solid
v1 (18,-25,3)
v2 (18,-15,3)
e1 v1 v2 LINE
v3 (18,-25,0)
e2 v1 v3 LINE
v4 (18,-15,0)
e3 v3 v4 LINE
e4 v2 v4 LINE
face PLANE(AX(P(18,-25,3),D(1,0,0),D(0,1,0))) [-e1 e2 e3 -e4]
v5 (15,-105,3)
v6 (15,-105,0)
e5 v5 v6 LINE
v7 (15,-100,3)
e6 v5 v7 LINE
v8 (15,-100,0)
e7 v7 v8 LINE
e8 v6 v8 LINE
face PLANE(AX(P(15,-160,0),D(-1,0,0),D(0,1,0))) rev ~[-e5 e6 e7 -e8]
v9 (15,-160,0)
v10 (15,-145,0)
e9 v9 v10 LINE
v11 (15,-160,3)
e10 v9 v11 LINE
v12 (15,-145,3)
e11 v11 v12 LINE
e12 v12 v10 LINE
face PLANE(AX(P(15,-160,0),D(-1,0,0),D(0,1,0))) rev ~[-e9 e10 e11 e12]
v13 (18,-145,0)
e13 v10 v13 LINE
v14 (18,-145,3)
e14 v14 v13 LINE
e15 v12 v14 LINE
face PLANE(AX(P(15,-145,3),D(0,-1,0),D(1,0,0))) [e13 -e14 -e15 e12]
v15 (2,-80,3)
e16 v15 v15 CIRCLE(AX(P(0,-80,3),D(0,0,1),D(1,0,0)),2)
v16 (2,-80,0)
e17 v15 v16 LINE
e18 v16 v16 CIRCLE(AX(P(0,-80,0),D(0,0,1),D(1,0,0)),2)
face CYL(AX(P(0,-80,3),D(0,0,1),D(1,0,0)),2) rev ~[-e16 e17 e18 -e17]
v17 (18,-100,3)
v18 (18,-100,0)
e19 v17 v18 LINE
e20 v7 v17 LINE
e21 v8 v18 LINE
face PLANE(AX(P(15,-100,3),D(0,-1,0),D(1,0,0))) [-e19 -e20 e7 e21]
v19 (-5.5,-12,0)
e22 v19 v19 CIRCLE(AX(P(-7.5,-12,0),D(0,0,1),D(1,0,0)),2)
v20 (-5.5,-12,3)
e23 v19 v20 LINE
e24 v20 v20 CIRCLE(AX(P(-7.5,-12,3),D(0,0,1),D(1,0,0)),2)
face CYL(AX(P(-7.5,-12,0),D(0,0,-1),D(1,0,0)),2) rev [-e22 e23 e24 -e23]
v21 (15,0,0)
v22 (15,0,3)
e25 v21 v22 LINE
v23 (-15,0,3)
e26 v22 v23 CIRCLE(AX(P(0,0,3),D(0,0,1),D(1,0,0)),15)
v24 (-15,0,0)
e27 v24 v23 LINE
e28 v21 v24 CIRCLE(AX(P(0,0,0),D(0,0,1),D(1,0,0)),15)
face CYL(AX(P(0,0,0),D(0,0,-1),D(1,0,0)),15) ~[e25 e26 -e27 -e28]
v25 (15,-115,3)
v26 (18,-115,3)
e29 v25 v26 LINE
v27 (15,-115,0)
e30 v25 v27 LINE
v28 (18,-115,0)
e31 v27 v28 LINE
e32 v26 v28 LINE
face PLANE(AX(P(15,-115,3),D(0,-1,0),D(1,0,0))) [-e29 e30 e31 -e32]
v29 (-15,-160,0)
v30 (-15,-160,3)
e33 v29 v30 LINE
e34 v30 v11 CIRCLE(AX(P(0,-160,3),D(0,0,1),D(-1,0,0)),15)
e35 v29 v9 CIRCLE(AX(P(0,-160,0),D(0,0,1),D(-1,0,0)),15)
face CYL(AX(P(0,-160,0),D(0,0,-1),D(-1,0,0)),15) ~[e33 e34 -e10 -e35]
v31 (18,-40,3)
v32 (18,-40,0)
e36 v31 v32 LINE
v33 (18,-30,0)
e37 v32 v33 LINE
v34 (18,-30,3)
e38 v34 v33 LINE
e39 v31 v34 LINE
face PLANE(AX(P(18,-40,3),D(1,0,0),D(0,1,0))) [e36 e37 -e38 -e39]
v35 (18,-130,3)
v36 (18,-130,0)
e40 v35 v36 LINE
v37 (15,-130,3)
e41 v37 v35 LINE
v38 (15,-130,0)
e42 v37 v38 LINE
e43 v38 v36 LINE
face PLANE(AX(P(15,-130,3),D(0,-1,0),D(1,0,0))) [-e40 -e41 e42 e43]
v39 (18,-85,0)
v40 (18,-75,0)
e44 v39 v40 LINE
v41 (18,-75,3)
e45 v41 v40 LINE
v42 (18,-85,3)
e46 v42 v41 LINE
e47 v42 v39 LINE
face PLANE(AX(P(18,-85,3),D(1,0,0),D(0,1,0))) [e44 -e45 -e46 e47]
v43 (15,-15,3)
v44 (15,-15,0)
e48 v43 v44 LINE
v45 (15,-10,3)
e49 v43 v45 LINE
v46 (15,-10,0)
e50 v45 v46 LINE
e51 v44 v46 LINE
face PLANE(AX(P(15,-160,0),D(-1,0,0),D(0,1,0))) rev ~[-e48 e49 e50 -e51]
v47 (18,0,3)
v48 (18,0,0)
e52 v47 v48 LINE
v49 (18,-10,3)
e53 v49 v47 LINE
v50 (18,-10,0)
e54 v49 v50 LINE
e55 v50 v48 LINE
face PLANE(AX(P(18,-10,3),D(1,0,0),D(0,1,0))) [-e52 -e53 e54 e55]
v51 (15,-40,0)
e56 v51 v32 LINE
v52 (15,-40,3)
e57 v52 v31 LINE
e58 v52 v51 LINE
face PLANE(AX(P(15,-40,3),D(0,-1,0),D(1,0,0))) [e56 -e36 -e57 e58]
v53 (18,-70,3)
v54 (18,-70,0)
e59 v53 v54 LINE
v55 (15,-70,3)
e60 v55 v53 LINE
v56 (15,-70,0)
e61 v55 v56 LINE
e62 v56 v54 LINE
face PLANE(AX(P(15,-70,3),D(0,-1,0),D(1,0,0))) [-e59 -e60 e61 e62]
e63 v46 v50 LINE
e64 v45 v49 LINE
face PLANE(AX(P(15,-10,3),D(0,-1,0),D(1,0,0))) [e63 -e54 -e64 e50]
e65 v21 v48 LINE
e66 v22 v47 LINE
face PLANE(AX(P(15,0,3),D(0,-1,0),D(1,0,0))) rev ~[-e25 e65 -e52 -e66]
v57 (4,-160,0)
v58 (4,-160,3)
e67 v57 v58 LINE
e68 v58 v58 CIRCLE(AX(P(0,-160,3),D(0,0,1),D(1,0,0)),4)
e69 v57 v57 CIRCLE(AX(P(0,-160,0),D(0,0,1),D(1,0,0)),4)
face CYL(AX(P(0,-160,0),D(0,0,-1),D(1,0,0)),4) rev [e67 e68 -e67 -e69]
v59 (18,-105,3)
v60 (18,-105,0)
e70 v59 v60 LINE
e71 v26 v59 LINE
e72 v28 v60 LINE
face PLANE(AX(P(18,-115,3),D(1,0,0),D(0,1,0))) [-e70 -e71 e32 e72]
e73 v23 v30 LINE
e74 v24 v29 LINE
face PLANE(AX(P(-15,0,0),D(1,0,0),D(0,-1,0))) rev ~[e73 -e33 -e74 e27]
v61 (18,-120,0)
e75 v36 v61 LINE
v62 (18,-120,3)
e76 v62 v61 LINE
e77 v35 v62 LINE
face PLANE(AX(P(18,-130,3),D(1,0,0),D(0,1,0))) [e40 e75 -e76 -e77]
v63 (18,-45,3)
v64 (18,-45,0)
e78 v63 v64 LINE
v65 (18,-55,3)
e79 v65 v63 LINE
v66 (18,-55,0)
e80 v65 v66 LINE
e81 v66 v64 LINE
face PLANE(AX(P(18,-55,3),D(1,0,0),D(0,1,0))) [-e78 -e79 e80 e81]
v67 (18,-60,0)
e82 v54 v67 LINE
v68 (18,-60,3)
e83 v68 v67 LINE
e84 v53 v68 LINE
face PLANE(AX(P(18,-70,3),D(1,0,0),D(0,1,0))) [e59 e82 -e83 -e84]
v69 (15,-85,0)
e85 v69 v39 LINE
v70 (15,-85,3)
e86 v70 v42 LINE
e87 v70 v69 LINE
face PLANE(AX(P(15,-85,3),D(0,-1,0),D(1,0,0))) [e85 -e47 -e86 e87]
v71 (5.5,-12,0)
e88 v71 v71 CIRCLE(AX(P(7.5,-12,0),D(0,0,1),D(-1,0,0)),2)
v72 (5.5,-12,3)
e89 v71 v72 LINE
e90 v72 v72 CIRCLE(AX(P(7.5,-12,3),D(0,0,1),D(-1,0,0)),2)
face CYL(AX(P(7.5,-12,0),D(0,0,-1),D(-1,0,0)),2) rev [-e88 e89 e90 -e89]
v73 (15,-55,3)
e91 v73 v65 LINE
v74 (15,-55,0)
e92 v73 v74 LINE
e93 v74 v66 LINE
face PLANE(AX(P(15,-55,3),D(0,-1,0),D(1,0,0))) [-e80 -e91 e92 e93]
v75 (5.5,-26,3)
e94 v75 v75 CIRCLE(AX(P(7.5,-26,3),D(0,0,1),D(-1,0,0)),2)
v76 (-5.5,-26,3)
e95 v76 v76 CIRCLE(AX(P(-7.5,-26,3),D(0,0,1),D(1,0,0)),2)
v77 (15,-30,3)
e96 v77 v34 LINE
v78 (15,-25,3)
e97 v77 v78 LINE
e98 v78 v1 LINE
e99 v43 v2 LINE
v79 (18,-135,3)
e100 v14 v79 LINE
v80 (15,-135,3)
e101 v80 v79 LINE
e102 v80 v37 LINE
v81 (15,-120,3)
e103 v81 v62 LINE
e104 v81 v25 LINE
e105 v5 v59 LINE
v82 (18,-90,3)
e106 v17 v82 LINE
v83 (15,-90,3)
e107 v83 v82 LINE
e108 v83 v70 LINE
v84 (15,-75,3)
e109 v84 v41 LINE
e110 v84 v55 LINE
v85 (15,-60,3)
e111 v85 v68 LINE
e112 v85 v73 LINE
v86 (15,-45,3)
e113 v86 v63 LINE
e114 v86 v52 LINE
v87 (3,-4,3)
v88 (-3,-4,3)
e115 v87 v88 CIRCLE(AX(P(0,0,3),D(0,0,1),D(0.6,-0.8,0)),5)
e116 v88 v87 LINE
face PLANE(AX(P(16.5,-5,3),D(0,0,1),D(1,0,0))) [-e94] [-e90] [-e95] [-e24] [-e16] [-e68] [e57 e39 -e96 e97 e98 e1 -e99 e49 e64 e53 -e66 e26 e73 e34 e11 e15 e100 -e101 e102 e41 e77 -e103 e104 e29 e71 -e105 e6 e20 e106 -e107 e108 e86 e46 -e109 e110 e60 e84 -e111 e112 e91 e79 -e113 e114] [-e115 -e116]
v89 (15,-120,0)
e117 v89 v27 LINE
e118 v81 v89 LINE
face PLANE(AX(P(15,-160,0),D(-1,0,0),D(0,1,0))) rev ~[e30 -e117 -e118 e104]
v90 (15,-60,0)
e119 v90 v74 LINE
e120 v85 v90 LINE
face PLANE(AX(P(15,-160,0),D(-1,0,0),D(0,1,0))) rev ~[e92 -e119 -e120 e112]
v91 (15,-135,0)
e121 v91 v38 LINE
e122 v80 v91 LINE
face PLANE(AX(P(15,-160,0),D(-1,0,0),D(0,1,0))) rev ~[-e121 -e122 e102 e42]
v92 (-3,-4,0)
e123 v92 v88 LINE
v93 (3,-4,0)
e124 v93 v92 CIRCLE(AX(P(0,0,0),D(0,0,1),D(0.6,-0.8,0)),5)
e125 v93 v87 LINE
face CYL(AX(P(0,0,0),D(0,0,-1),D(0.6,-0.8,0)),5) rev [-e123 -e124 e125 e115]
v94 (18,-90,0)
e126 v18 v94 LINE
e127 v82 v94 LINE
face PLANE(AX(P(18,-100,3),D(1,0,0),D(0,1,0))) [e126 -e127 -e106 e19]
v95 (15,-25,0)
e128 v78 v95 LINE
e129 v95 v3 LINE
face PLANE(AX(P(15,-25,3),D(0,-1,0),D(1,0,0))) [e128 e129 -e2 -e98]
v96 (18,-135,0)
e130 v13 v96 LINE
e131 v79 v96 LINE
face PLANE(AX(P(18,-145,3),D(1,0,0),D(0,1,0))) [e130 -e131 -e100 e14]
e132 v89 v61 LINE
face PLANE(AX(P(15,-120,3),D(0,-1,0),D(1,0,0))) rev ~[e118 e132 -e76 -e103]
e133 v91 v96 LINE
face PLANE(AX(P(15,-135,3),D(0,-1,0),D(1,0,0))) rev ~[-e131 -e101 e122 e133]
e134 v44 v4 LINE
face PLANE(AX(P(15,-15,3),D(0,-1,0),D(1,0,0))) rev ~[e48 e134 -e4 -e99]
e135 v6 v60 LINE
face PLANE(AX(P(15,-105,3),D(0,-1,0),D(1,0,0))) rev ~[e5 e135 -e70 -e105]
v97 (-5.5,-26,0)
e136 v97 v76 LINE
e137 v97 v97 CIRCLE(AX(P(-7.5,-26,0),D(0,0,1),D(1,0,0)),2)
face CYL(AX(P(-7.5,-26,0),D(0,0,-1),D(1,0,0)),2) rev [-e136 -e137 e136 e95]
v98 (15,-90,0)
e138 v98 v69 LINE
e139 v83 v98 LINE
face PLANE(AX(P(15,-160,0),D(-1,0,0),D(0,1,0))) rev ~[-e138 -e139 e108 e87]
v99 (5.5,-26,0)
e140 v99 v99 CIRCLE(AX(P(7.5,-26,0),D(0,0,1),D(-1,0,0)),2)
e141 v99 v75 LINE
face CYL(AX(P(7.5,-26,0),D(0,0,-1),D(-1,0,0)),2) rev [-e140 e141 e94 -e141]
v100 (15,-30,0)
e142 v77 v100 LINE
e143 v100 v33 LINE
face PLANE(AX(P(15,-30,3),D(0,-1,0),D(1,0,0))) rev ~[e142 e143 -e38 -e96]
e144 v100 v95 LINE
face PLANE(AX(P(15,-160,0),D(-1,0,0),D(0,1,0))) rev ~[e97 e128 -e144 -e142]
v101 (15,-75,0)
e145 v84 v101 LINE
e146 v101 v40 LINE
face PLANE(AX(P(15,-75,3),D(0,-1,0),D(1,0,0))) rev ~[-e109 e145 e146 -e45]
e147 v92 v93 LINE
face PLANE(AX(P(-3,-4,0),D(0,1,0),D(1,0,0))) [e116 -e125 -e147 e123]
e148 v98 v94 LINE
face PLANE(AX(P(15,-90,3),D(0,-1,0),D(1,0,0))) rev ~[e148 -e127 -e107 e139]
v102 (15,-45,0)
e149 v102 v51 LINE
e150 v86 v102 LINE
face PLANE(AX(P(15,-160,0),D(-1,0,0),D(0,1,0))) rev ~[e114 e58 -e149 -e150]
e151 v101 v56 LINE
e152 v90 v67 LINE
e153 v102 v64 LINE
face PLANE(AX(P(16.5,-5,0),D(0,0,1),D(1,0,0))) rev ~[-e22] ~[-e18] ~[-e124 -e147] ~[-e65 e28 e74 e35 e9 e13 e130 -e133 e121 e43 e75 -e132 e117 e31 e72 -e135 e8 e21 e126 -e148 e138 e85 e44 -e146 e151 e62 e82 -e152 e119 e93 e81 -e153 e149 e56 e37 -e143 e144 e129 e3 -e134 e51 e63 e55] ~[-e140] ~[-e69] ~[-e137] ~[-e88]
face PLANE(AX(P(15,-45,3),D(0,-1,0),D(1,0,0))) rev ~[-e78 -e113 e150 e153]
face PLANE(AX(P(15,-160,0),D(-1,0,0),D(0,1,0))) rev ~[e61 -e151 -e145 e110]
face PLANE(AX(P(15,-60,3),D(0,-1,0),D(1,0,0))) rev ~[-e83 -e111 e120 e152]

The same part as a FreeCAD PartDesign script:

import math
import FreeCAD as App
import Part
import Sketcher
from FreeCAD import Vector
Q = App.Units.Quantity

doc = App.newDocument("Part")
body = doc.addObject("PartDesign::Body", "Body")

# Sketch on XY plane
sketch1 = doc.addObject("Sketcher::SketchObject", "Sketch")
body.addObject(sketch1)
sketch1.AttachmentSupport = (doc.XY_Plane, [""])
sketch1.MapMode = "FlatFace"
sketch1.addGeometry([
    Part.LineSegment(Vector(-15, 0, 0), Vector(-15, -160, 0)),  # 0
    Part.ArcOfCircle(Part.Circle(Vector(0, -160, 0), Vector(0, 0, 1), 15), math.radians(180), math.radians(360)),  # 1
    Part.LineSegment(Vector(15, -160, 0), Vector(15, 0, 0)),  # 2
    Part.ArcOfCircle(Part.Circle(Vector(0, 0, 0), Vector(0, 0, 1), 15), math.radians(0), math.radians(180)),  # 3
    Part.Circle(Vector(0, -160, 0), Vector(0, 0, 1), 4),  # 4
    Part.Circle(Vector(-7.5, -26, 0), Vector(0, 0, 1), 2),  # 5
    Part.Circle(Vector(-7.5, -12, 0), Vector(0, 0, 1), 2),  # 6
    Part.ArcOfCircle(Part.Circle(Vector(0, 0, 0), Vector(0, 0, 1), 5), math.radians(-53), math.radians(233)),  # 7
    Part.LineSegment(Vector(3, -4, 0), Vector(-3, -4, 0)),  # 8
    Part.Circle(Vector(7.5, -26, 0), Vector(0, 0, 1), 2),  # 9
    Part.Circle(Vector(7.5, -12, 0), Vector(0, 0, 1), 2),  # 10
], False)
sketch1.addConstraint([
    Sketcher.Constraint("Tangent", 0, 2, 1, 1),
    Sketcher.Constraint("Tangent", 1, 2, 2, 1),
    Sketcher.Constraint("Tangent", 2, 2, 3, 1),
    Sketcher.Constraint("Tangent", 3, 2, 0, 1),
    Sketcher.Constraint("Coincident", 7, 1, 8, 1),
    Sketcher.Constraint("Coincident", 8, 2, 7, 2),
    Sketcher.Constraint("Vertical", 0),
    Sketcher.Constraint("Vertical", 2),
    Sketcher.Constraint("Horizontal", 8),
    Sketcher.Constraint("Coincident", 3, 3, -1, 1),
    Sketcher.Constraint("Coincident", 7, 3, -1, 1),
    Sketcher.Constraint("Coincident", 4, 3, 1, 3),
    Sketcher.Constraint("Equal", 5, 6),
    Sketcher.Constraint("Equal", 6, 9),
    Sketcher.Constraint("Equal", 9, 10),
    Sketcher.Constraint("Symmetric", 5, 3, 9, 3, -2),
    Sketcher.Constraint("Symmetric", 6, 3, 10, 3, -2),
    Sketcher.Constraint("Vertical", 5, 3, 6, 3),
    Sketcher.Constraint("Diameter", 4, Q("8 mm")),
    Sketcher.Constraint("Diameter", 5, Q("4 mm")),
    Sketcher.Constraint("Radius", 1, Q("15 mm")),
    Sketcher.Constraint("Radius", 7, Q("5 mm")),
    Sketcher.Constraint("DistanceX", 8, 2, 8, 1, Q("6 mm")),
    Sketcher.Constraint("DistanceY", 0, 2, 0, 1, Q("160 mm")),
    Sketcher.Constraint("DistanceY", 5, 3, -1, 1, Q("26 mm")),
    Sketcher.Constraint("DistanceY", 6, 3, -1, 1, Q("12 mm")),
    Sketcher.Constraint("DistanceX", 5, 3, 9, 3, Q("15 mm")),
])
pad1 = doc.addObject("PartDesign::Pad", "Pad")
body.addObject(pad1)
pad1.Profile = sketch1
pad1.Length = 3

# Sketch on XY plane
sketch2 = doc.addObject("Sketcher::SketchObject", "Sketch001")
body.addObject(sketch2)
sketch2.AttachmentSupport = (doc.XY_Plane, [""])
sketch2.MapMode = "FlatFace"
sketch2.AttachmentOffset = App.Placement(Vector(0, 0, 3), App.Rotation())
sketch2.addGeometry([
    Part.LineSegment(Vector(15, 0, 0), Vector(15, -10, 0)),  # 0
    Part.LineSegment(Vector(15, -10, 0), Vector(18, -10, 0)),  # 1
    Part.LineSegment(Vector(18, -10, 0), Vector(18, 0, 0)),  # 2
    Part.LineSegment(Vector(18, 0, 0), Vector(15, 0, 0)),  # 3
    Part.LineSegment(Vector(15, -15, 0), Vector(15, -25, 0)),  # 4
    Part.LineSegment(Vector(15, -25, 0), Vector(18, -25, 0)),  # 5
    Part.LineSegment(Vector(18, -25, 0), Vector(18, -15, 0)),  # 6
    Part.LineSegment(Vector(18, -15, 0), Vector(15, -15, 0)),  # 7
    Part.LineSegment(Vector(15, -30, 0), Vector(15, -40, 0)),  # 8
    Part.LineSegment(Vector(15, -40, 0), Vector(18, -40, 0)),  # 9
    Part.LineSegment(Vector(18, -40, 0), Vector(18, -30, 0)),  # 10
    Part.LineSegment(Vector(18, -30, 0), Vector(15, -30, 0)),  # 11
    Part.LineSegment(Vector(15, -45, 0), Vector(15, -55, 0)),  # 12
    Part.LineSegment(Vector(15, -55, 0), Vector(18, -55, 0)),  # 13
    Part.LineSegment(Vector(18, -55, 0), Vector(18, -45, 0)),  # 14
    Part.LineSegment(Vector(18, -45, 0), Vector(15, -45, 0)),  # 15
    Part.LineSegment(Vector(15, -60, 0), Vector(15, -70, 0)),  # 16
    Part.LineSegment(Vector(15, -70, 0), Vector(18, -70, 0)),  # 17
    Part.LineSegment(Vector(18, -70, 0), Vector(18, -60, 0)),  # 18
    Part.LineSegment(Vector(18, -60, 0), Vector(15, -60, 0)),  # 19
    Part.LineSegment(Vector(15, -75, 0), Vector(15, -85, 0)),  # 20
    Part.LineSegment(Vector(15, -85, 0), Vector(18, -85, 0)),  # 21
    Part.LineSegment(Vector(18, -85, 0), Vector(18, -75, 0)),  # 22
    Part.LineSegment(Vector(18, -75, 0), Vector(15, -75, 0)),  # 23
    Part.LineSegment(Vector(15, -90, 0), Vector(15, -100, 0)),  # 24
    Part.LineSegment(Vector(15, -100, 0), Vector(18, -100, 0)),  # 25
    Part.LineSegment(Vector(18, -100, 0), Vector(18, -90, 0)),  # 26
    Part.LineSegment(Vector(18, -90, 0), Vector(15, -90, 0)),  # 27
    Part.LineSegment(Vector(15, -105, 0), Vector(15, -115, 0)),  # 28
    Part.LineSegment(Vector(15, -115, 0), Vector(18, -115, 0)),  # 29
    Part.LineSegment(Vector(18, -115, 0), Vector(18, -105, 0)),  # 30
    Part.LineSegment(Vector(18, -105, 0), Vector(15, -105, 0)),  # 31
    Part.LineSegment(Vector(15, -120, 0), Vector(15, -130, 0)),  # 32
    Part.LineSegment(Vector(15, -130, 0), Vector(18, -130, 0)),  # 33
    Part.LineSegment(Vector(18, -130, 0), Vector(18, -120, 0)),  # 34
    Part.LineSegment(Vector(18, -120, 0), Vector(15, -120, 0)),  # 35
    Part.LineSegment(Vector(15, -135, 0), Vector(15, -145, 0)),  # 36
    Part.LineSegment(Vector(15, -145, 0), Vector(18, -145, 0)),  # 37
    Part.LineSegment(Vector(18, -145, 0), Vector(18, -135, 0)),  # 38
    Part.LineSegment(Vector(18, -135, 0), Vector(15, -135, 0)),  # 39
], False)
sketch2.addConstraint([
    Sketcher.Constraint("Coincident", 0, 2, 1, 1),
    Sketcher.Constraint("Coincident", 1, 2, 2, 1),
    Sketcher.Constraint("Coincident", 2, 2, 3, 1),
    Sketcher.Constraint("Coincident", 3, 2, 0, 1),
    Sketcher.Constraint("Coincident", 4, 2, 5, 1),
    Sketcher.Constraint("Coincident", 5, 2, 6, 1),
    Sketcher.Constraint("Coincident", 6, 2, 7, 1),
    Sketcher.Constraint("Coincident", 7, 2, 4, 1),
    Sketcher.Constraint("Coincident", 8, 2, 9, 1),
    Sketcher.Constraint("Coincident", 9, 2, 10, 1),
    Sketcher.Constraint("Coincident", 10, 2, 11, 1),
    Sketcher.Constraint("Coincident", 11, 2, 8, 1),
    Sketcher.Constraint("Coincident", 12, 2, 13, 1),
    Sketcher.Constraint("Coincident", 13, 2, 14, 1),
    Sketcher.Constraint("Coincident", 14, 2, 15, 1),
    Sketcher.Constraint("Coincident", 15, 2, 12, 1),
    Sketcher.Constraint("Coincident", 16, 2, 17, 1),
    Sketcher.Constraint("Coincident", 17, 2, 18, 1),
    Sketcher.Constraint("Coincident", 18, 2, 19, 1),
    Sketcher.Constraint("Coincident", 19, 2, 16, 1),
    Sketcher.Constraint("Coincident", 20, 2, 21, 1),
    Sketcher.Constraint("Coincident", 21, 2, 22, 1),
    Sketcher.Constraint("Coincident", 22, 2, 23, 1),
    Sketcher.Constraint("Coincident", 23, 2, 20, 1),
    Sketcher.Constraint("Coincident", 24, 2, 25, 1),
    Sketcher.Constraint("Coincident", 25, 2, 26, 1),
    Sketcher.Constraint("Coincident", 26, 2, 27, 1),
    Sketcher.Constraint("Coincident", 27, 2, 24, 1),
    Sketcher.Constraint("Coincident", 28, 2, 29, 1),
    Sketcher.Constraint("Coincident", 29, 2, 30, 1),
    Sketcher.Constraint("Coincident", 30, 2, 31, 1),
    Sketcher.Constraint("Coincident", 31, 2, 28, 1),
    Sketcher.Constraint("Coincident", 32, 2, 33, 1),
    Sketcher.Constraint("Coincident", 33, 2, 34, 1),
    Sketcher.Constraint("Coincident", 34, 2, 35, 1),
    Sketcher.Constraint("Coincident", 35, 2, 32, 1),
    Sketcher.Constraint("Coincident", 36, 2, 37, 1),
    Sketcher.Constraint("Coincident", 37, 2, 38, 1),
    Sketcher.Constraint("Coincident", 38, 2, 39, 1),
    Sketcher.Constraint("Coincident", 39, 2, 36, 1),
    Sketcher.Constraint("Vertical", 0),
    Sketcher.Constraint("Horizontal", 1),
    Sketcher.Constraint("Vertical", 2),
    Sketcher.Constraint("Horizontal", 3),
    Sketcher.Constraint("Vertical", 4),
    Sketcher.Constraint("Horizontal", 5),
    Sketcher.Constraint("Vertical", 6),
    Sketcher.Constraint("Horizontal", 7),
    Sketcher.Constraint("Vertical", 8),
    Sketcher.Constraint("Horizontal", 9),
    Sketcher.Constraint("Vertical", 10),
    Sketcher.Constraint("Horizontal", 11),
    Sketcher.Constraint("Vertical", 12),
    Sketcher.Constraint("Horizontal", 13),
    Sketcher.Constraint("Vertical", 14),
    Sketcher.Constraint("Horizontal", 15),
    Sketcher.Constraint("Vertical", 16),
    Sketcher.Constraint("Horizontal", 17),
    Sketcher.Constraint("Vertical", 18),
    Sketcher.Constraint("Horizontal", 19),
    Sketcher.Constraint("Vertical", 20),
    Sketcher.Constraint("Horizontal", 21),
    Sketcher.Constraint("Vertical", 22),
    Sketcher.Constraint("Horizontal", 23),
    Sketcher.Constraint("Vertical", 24),
    Sketcher.Constraint("Horizontal", 25),
    Sketcher.Constraint("Vertical", 26),
    Sketcher.Constraint("Horizontal", 27),
    Sketcher.Constraint("Vertical", 28),
    Sketcher.Constraint("Horizontal", 29),
    Sketcher.Constraint("Vertical", 30),
    Sketcher.Constraint("Horizontal", 31),
    Sketcher.Constraint("Vertical", 32),
    Sketcher.Constraint("Horizontal", 33),
    Sketcher.Constraint("Vertical", 34),
    Sketcher.Constraint("Horizontal", 35),
    Sketcher.Constraint("Vertical", 36),
    Sketcher.Constraint("Horizontal", 37),
    Sketcher.Constraint("Vertical", 38),
    Sketcher.Constraint("Horizontal", 39),
    Sketcher.Constraint("PointOnObject", 2, 2, -1),
    Sketcher.Constraint("Vertical", 3, 2, 4, 2),
    Sketcher.Constraint("Vertical", 2, 2, 5, 2),
    Sketcher.Constraint("Vertical", 7, 2, 8, 2),
    Sketcher.Constraint("Vertical", 6, 2, 9, 2),
    Sketcher.Constraint("Vertical", 11, 2, 12, 2),
    Sketcher.Constraint("Vertical", 10, 2, 13, 2),
    Sketcher.Constraint("Vertical", 15, 2, 16, 2),
    Sketcher.Constraint("Vertical", 14, 2, 17, 2),
    Sketcher.Constraint("Vertical", 19, 2, 20, 2),
    Sketcher.Constraint("Vertical", 18, 2, 21, 2),
    Sketcher.Constraint("Vertical", 23, 2, 24, 2),
    Sketcher.Constraint("Vertical", 22, 2, 25, 2),
    Sketcher.Constraint("Vertical", 27, 2, 28, 2),
    Sketcher.Constraint("Vertical", 26, 2, 29, 2),
    Sketcher.Constraint("Vertical", 31, 2, 32, 2),
    Sketcher.Constraint("Vertical", 30, 2, 33, 2),
    Sketcher.Constraint("Vertical", 35, 2, 36, 2),
    Sketcher.Constraint("Vertical", 34, 2, 37, 2),
    Sketcher.Constraint("Equal", 2, 4),
    Sketcher.Constraint("Equal", 6, 8),
    Sketcher.Constraint("Equal", 10, 12),
    Sketcher.Constraint("Equal", 14, 16),
    Sketcher.Constraint("Equal", 18, 20),
    Sketcher.Constraint("Equal", 22, 24),
    Sketcher.Constraint("Equal", 26, 28),
    Sketcher.Constraint("Equal", 30, 32),
    Sketcher.Constraint("Equal", 34, 36),
    Sketcher.Constraint("DistanceX", 1, 1, 1, 2, Q("3 mm")),
    Sketcher.Constraint("DistanceY", 0, 2, 0, 1, Q("10 mm")),
    Sketcher.Constraint("DistanceX", -1, 1, 0, 2, Q("15 mm")),
    Sketcher.Constraint("DistanceY", 4, 2, -1, 1, Q("25 mm")),
    Sketcher.Constraint("DistanceY", 8, 2, -1, 1, Q("40 mm")),
    Sketcher.Constraint("DistanceY", 12, 2, -1, 1, Q("55 mm")),
    Sketcher.Constraint("DistanceY", 16, 2, -1, 1, Q("70 mm")),
    Sketcher.Constraint("DistanceY", 20, 2, -1, 1, Q("85 mm")),
    Sketcher.Constraint("DistanceY", 24, 2, -1, 1, Q("100 mm")),
    Sketcher.Constraint("DistanceY", 28, 2, -1, 1, Q("115 mm")),
    Sketcher.Constraint("DistanceY", 32, 2, -1, 1, Q("130 mm")),
    Sketcher.Constraint("DistanceY", 36, 2, -1, 1, Q("145 mm")),
])
pad2 = doc.addObject("PartDesign::Pad", "Pad001")
body.addObject(pad2)
pad2.Profile = sketch2
pad2.Length = 3
pad2.Reversed = True

# Sketch on XY plane
sketch3 = doc.addObject("Sketcher::SketchObject", "Sketch002")
body.addObject(sketch3)
sketch3.AttachmentSupport = (doc.XY_Plane, [""])
sketch3.MapMode = "FlatFace"
sketch3.AttachmentOffset = App.Placement(Vector(0, 0, 3), App.Rotation())
sketch3.addGeometry(Part.Circle(Vector(0, -80, 0), Vector(0, 0, 1), 2), False)
sketch3.addConstraint([
    Sketcher.Constraint("PointOnObject", 0, 3, -2),
    Sketcher.Constraint("Diameter", 0, Q("4 mm")),
    Sketcher.Constraint("DistanceY", 0, 3, -1, 1, Q("80 mm")),
])
pocket1 = doc.addObject("PartDesign::Pocket", "Pocket")
body.addObject(pocket1)
pocket1.Profile = sketch3
pocket1.Length = 3

doc.recompute()
